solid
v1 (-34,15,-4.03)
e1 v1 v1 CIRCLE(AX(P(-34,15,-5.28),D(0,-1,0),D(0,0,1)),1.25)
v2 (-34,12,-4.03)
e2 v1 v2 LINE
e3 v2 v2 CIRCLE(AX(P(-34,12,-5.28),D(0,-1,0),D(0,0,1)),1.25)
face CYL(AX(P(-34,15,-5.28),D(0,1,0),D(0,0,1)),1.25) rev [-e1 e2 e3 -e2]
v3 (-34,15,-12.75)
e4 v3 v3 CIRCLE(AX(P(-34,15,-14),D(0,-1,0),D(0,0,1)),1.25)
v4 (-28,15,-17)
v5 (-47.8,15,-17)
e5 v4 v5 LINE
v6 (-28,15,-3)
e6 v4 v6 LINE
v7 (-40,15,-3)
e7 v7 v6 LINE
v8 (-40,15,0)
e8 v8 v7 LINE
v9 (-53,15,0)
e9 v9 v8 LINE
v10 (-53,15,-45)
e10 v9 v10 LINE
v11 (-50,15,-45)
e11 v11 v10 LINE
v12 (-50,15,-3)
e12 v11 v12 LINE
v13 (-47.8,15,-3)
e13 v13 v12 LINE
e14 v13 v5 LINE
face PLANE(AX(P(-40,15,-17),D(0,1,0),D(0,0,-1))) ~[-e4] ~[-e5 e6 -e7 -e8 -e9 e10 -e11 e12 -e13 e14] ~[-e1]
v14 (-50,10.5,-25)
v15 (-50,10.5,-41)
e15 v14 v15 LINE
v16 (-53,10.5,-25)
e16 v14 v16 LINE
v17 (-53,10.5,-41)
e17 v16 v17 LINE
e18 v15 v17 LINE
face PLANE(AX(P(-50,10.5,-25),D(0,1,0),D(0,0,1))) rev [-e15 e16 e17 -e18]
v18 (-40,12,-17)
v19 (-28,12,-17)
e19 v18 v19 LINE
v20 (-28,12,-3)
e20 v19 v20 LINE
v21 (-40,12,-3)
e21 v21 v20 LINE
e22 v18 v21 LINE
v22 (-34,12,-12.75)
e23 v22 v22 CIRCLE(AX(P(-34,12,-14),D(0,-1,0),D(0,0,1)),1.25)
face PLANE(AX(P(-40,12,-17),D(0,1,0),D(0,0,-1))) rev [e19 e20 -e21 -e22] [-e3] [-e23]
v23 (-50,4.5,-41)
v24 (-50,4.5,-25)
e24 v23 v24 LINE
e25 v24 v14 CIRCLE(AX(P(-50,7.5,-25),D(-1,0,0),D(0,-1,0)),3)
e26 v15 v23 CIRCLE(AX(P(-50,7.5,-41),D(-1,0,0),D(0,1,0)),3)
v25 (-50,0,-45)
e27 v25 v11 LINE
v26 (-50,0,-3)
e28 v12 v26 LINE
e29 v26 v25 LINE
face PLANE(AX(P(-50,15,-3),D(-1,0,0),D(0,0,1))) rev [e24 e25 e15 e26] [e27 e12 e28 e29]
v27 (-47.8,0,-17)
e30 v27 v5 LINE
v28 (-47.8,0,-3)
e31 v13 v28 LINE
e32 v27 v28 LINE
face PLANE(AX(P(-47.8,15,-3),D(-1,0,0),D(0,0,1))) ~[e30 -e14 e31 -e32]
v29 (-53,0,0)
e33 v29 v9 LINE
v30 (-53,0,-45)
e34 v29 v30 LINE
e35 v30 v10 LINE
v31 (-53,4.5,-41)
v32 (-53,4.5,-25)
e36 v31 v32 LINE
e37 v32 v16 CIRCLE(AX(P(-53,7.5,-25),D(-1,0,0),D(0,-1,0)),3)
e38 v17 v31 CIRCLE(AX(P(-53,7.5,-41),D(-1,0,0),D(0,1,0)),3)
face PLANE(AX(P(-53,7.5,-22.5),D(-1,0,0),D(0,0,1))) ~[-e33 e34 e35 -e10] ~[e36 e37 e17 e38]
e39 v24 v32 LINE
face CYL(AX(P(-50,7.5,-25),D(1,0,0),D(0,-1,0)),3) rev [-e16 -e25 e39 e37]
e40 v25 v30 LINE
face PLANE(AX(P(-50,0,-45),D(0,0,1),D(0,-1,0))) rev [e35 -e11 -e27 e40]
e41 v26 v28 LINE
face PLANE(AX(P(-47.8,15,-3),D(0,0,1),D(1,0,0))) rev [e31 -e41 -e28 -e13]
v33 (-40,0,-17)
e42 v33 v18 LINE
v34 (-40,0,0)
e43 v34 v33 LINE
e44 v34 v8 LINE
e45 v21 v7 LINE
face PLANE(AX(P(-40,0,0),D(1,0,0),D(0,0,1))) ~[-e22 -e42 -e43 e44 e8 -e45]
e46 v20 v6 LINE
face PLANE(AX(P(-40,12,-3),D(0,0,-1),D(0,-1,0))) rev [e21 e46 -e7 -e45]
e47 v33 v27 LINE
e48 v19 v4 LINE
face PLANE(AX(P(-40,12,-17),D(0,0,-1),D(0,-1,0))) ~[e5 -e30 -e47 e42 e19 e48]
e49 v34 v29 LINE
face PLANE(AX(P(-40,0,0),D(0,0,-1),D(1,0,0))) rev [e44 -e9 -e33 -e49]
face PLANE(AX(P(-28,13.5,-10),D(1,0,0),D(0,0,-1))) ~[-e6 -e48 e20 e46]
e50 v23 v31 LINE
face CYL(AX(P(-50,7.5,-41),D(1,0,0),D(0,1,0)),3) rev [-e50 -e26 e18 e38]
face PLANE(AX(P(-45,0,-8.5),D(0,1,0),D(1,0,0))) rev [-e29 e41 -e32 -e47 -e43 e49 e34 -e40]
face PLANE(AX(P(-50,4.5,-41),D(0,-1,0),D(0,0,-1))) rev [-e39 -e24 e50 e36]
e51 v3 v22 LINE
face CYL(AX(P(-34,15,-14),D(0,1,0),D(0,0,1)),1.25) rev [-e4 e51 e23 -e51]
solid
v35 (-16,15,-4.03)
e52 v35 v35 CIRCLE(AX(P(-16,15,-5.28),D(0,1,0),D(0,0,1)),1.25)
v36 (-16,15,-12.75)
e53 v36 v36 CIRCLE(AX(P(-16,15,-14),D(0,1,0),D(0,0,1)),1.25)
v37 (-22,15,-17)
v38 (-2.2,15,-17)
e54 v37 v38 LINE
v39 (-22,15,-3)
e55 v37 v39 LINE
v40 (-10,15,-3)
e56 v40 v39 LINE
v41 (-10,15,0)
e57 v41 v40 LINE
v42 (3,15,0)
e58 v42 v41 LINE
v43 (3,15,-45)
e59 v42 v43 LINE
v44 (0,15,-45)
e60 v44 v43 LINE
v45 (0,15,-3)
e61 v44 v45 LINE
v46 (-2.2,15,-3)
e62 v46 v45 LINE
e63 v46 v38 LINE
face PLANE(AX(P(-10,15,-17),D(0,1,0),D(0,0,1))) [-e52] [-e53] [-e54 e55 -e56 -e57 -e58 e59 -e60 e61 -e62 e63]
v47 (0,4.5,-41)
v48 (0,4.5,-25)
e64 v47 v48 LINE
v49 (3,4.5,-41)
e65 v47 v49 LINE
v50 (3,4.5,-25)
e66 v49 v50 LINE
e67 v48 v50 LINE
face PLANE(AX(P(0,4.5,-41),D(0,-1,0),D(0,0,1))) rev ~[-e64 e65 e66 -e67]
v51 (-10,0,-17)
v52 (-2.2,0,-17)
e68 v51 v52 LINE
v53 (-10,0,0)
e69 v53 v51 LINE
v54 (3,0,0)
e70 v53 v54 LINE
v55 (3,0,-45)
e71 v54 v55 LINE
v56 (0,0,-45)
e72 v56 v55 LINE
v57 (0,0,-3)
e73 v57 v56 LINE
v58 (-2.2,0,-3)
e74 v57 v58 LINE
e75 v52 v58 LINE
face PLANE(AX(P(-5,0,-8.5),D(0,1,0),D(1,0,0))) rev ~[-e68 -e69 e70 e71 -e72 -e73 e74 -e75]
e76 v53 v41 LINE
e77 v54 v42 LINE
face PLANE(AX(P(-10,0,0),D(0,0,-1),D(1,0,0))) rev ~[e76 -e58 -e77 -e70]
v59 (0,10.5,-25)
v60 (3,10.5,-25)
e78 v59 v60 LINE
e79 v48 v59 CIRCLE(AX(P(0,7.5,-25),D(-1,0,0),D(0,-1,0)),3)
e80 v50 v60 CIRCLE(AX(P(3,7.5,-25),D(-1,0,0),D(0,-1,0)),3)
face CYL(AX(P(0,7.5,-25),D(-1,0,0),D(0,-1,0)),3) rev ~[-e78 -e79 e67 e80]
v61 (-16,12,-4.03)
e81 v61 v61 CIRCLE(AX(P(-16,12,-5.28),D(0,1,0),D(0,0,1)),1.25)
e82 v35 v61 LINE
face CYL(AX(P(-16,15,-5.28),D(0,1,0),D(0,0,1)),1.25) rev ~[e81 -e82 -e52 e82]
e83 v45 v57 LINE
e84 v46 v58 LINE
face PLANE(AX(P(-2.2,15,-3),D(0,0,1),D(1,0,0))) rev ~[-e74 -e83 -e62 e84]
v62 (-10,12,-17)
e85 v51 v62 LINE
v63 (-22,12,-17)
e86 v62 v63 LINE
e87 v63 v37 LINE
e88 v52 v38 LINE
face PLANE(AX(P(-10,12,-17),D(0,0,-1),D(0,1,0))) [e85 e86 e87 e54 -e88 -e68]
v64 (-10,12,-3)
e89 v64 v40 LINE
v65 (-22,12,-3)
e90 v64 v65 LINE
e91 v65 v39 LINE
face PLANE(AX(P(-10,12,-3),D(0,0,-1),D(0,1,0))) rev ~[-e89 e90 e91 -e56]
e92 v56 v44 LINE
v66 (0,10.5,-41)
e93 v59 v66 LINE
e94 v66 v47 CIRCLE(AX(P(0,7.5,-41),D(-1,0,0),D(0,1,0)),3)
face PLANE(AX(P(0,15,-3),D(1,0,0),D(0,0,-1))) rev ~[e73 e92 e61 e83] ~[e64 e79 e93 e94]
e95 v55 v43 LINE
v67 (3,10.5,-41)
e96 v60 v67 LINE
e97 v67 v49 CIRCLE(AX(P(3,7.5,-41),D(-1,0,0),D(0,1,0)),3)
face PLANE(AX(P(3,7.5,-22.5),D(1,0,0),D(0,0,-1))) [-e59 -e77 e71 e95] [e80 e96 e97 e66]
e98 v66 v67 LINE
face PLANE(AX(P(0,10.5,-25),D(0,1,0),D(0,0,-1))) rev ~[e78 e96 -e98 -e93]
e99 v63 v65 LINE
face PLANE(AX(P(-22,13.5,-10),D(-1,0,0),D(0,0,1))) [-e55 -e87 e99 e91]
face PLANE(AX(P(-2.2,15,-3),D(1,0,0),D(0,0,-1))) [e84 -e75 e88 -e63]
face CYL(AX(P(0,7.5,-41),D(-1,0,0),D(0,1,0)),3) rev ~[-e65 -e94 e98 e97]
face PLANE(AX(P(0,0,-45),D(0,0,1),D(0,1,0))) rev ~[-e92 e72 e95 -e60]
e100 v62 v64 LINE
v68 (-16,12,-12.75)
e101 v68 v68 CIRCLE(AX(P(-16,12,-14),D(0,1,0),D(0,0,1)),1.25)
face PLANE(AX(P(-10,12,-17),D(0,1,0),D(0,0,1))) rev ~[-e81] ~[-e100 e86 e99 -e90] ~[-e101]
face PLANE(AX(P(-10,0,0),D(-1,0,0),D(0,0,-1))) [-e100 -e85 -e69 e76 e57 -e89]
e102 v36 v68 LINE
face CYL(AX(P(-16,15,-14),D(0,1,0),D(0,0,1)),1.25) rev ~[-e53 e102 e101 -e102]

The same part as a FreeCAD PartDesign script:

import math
import FreeCAD as App
import Part
import Sketcher

doc = App.newDocument("Part")
body = doc.addObject("PartDesign::Body", "Body")

sketch1 = body.newObject("Sketcher::SketchObject", "Sketch")
sketch1.AttachmentSupport = (doc.getObject("YZ_Plane"), [""])
sketch1.MapMode = "FlatFace"
sketch1.addGeometry(Part.LineSegment(App.Vector(15, 0, 0), App.Vector(0, 0, 0)), False)
sketch1.addGeometry(Part.LineSegment(App.Vector(0, 0, 0), App.Vector(0, -45, 0)), False)
sketch1.addGeometry(Part.LineSegment(App.Vector(0, -45, 0), App.Vector(15, -45, 0)), False)
sketch1.addGeometry(Part.LineSegment(App.Vector(15, -45, 0), App.Vector(15, 0, 0)), False)
sketch1.addGeometry(Part.ArcOfCircle(Part.Circle(App.Vector(7.5, -41, 0), App.Vector(0, 0, 1), 3), math.radians(180), math.radians(360)), False)
sketch1.addGeometry(Part.LineSegment(App.Vector(4.5, -41, 0), App.Vector(4.5, -25, 0)), False)
sketch1.addGeometry(Part.ArcOfCircle(Part.Circle(App.Vector(7.5, -25, 0), App.Vector(0, 0, 1), 3), math.radians(0), math.radians(180)), False)
sketch1.addGeometry(Part.LineSegment(App.Vector(10.5, -25, 0), App.Vector(10.5, -41, 0)), False)
sketch1.addConstraint(Sketcher.Constraint("Coincident", 0, 2, 1, 1))
sketch1.addConstraint(Sketcher.Constraint("Coincident", 1, 2, 2, 1))
sketch1.addConstraint(Sketcher.Constraint("Coincident", 2, 2, 3, 1))
sketch1.addConstraint(Sketcher.Constraint("Coincident", 3, 2, 0, 1))
sketch1.addConstraint(Sketcher.Constraint("Tangent", 4, 1, 5, 1))
sketch1.addConstraint(Sketcher.Constraint("Tangent", 5, 2, 6, 2))
sketch1.addConstraint(Sketcher.Constraint("Tangent", 6, 1, 7, 1))
sketch1.addConstraint(Sketcher.Constraint("Tangent", 7, 2, 4, 2))
sketch1.addConstraint(Sketcher.Constraint("Horizontal", 0))
sketch1.addConstraint(Sketcher.Constraint("Vertical", 1))
sketch1.addConstraint(Sketcher.Constraint("Horizontal", 2))
sketch1.addConstraint(Sketcher.Constraint("Vertical", 3))
sketch1.addConstraint(Sketcher.Constraint("Vertical", 5))
sketch1.addConstraint(Sketcher.Constraint("Vertical", 7))
sketch1.addConstraint(Sketcher.Constraint("Coincident", 0, 2, -1, 1))
sketch1.addConstraint(Sketcher.Constraint("Radius", 4, 3.0))
sketch1.addConstraint(Sketcher.Constraint("DistanceX", 0, 2, 0, 1, 15.0))
sketch1.addConstraint(Sketcher.Constraint("DistanceY", 1, 2, 1, 1, 45.0))
sketch1.addConstraint(Sketcher.Constraint("DistanceY", 5, 1, 5, 2, 16.0))
sketch1.addConstraint(Sketcher.Constraint("DistanceY", 4, 3, -1, 1, 41.0))
sketch1.addConstraint(Sketcher.Constraint("DistanceX", -1, 1, 4, 3, 7.5))
pad1 = body.newObject("PartDesign::Pad", "Pad")
pad1.Profile = sketch1
pad1.Length = 3

sketch2 = body.newObject("Sketcher::SketchObject", "Sketch001")
sketch2.AttachmentSupport = (doc.getObject("XZ_Plane"), [""])
sketch2.MapMode = "FlatFace"
sketch2.addGeometry(Part.LineSegment(App.Vector(-10, -17, 0), App.Vector(-10, 0, 0)), False)
sketch2.addGeometry(Part.LineSegment(App.Vector(-10, 0, 0), App.Vector(0, 0, 0)), False)
sketch2.addGeometry(Part.LineSegment(App.Vector(0, 0, 0), App.Vector(0, -17, 0)), False)
sketch2.addGeometry(Part.LineSegment(App.Vector(0, -17, 0), App.Vector(-10, -17, 0)), False)
sketch2.addConstraint(Sketcher.Constraint("Coincident", 0, 2, 1, 1))
sketch2.addConstraint(Sketcher.Constraint("Coincident", 1, 2, 2, 1))
sketch2.addConstraint(Sketcher.Constraint("Coincident", 2, 2, 3, 1))
sketch2.addConstraint(Sketcher.Constraint("Coincident", 3, 2, 0, 1))
sketch2.addConstraint(Sketcher.Constraint("Vertical", 0))
sketch2.addConstraint(Sketcher.Constraint("Horizontal", 1))
sketch2.addConstraint(Sketcher.Constraint("Vertical", 2))
sketch2.addConstraint(Sketcher.Constraint("Horizontal", 3))
sketch2.addConstraint(Sketcher.Constraint("Coincident", 1, 2, -1, 1))
sketch2.addConstraint(Sketcher.Constraint("DistanceX", 1, 1, 1, 2, 10.0))
sketch2.addConstraint(Sketcher.Constraint("DistanceY", 0, 1, 0, 2, 17.0))
pad2 = body.newObject("PartDesign::Pad", "Pad001")
pad2.Profile = sketch2
pad2.Length = 15
pad2.Reversed = True

sketch3 = body.newObject("Sketcher::SketchObject", "Sketch002")
sketch3.AttachmentSupport = (doc.getObject("XZ_Plane"), [""])
sketch3.MapMode = "FlatFace"
sketch3.AttachmentOffset = App.Placement(App.Vector(0, 0, -15), App.Rotation())
sketch3.addGeometry(Part.LineSegment(App.Vector(-2.2, -45, 0), App.Vector(-2.2, -3, 0)), False)
sketch3.addGeometry(Part.LineSegment(App.Vector(-2.2, -3, 0), App.Vector(0, -3, 0)), False)
sketch3.addGeometry(Part.LineSegment(App.Vector(0, -3, 0), App.Vector(0, -45, 0)), False)
sketch3.addGeometry(Part.LineSegment(App.Vector(0, -45, 0), App.Vector(-2.2, -45, 0)), False)
sketch3.addConstraint(Sketcher.Constraint("Coincident", 0, 2, 1, 1))
sketch3.addConstraint(Sketcher.Constraint("Coincident", 1, 2, 2, 1))
sketch3.addConstraint(Sketcher.Constraint("Coincident", 2, 2, 3, 1))
sketch3.addConstraint(Sketcher.Constraint("Coincident", 3, 2, 0, 1))
sketch3.addConstraint(Sketcher.Constraint("Vertical", 0))
sketch3.addConstraint(Sketcher.Constraint("Horizontal", 1))
sketch3.addConstraint(Sketcher.Constraint("Vertical", 2))
sketch3.addConstraint(Sketcher.Constraint("Horizontal", 3))
sketch3.addConstraint(Sketcher.Constraint("PointOnObject", 1, 2, -2))
sketch3.addConstraint(Sketcher.Constraint("DistanceY", 0, 1, 0, 2, 42.0))
sketch3.addConstraint(Sketcher.Constraint("DistanceX", 1, 1, 1, 2, 2.2))
sketch3.addConstraint(Sketcher.Constraint("DistanceY", 0, 2, -1, 1, 3.0))
pocket1 = body.newObject("PartDesign::Pocket", "Pocket")
pocket1.Profile = sketch3
pocket1.Length = 15
pocket1.Reversed = True

sketch4 = body.newObject("Sketcher::SketchObject", "Sketch003")
sketch4.AttachmentSupport = (doc.getObject("YZ_Plane"), [""])
sketch4.MapMode = "FlatFace"
sketch4.AttachmentOffset = App.Placement(App.Vector(0, 0, -10), App.Rotation())
sketch4.addGeometry(Part.LineSegment(App.Vector(15, -17, 0), App.Vector(12, -17, 0)), False)
sketch4.addGeometry(Part.LineSegment(App.Vector(12, -17, 0), App.Vector(12, -3, 0)), False)
sketch4.addGeometry(Part.LineSegment(App.Vector(12, -3, 0), App.Vector(15, -3, 0)), False)
sketch4.addGeometry(Part.LineSegment(App.Vector(15, -3, 0), App.Vector(15, -17, 0)), False)
sketch4.addConstraint(Sketcher.Constraint("Coincident", 0, 2, 1, 1))
sketch4.addConstraint(Sketcher.Constraint("Coincident", 1, 2, 2, 1))
sketch4.addConstraint(Sketcher.Constraint("Coincident", 2, 2, 3, 1))
sketch4.addConstraint(Sketcher.Constraint("Coincident", 3, 2, 0, 1))
sketch4.addConstraint(Sketcher.Constraint("Horizontal", 0))
sketch4.addConstraint(Sketcher.Constraint("Vertical", 1))
sketch4.addConstraint(Sketcher.Constraint("Horizontal", 2))
sketch4.addConstraint(Sketcher.Constraint("Vertical", 3))
sketch4.addConstraint(Sketcher.Constraint("DistanceX", 0, 2, 0, 1, 3.0))
sketch4.addConstraint(Sketcher.Constraint("DistanceY", 1, 1, 1, 2, 14.0))
sketch4.addConstraint(Sketcher.Constraint("DistanceX", -1, 1, 0, 2, 12.0))
sketch4.addConstraint(Sketcher.Constraint("DistanceY", 0, 2, -1, 1, 17.0))
pad3 = body.newObject("PartDesign::Pad", "Pad002")
pad3.Profile = sketch4
pad3.Length = 12
pad3.Reversed = True

sketch5 = body.newObject("Sketcher::SketchObject", "Sketch004")
sketch5.AttachmentSupport = (doc.getObject("XZ_Plane"), [""])
sketch5.MapMode = "FlatFace"
sketch5.AttachmentOffset = App.Placement(App.Vector(0, 0, -15), App.Rotation())
sketch5.addGeometry(Part.Circle(App.Vector(-16, -14, 0), App.Vector(0, 0, 1), 1.2), False)
sketch5.addConstraint(Sketcher.Constraint("Diameter", 0, 2.5))
sketch5.addConstraint(Sketcher.Constraint("DistanceX", 0, 3, -1, 1, 16.0))
sketch5.addConstraint(Sketcher.Constraint("DistanceY", 0, 3, -1, 1, 14.0))
pocket2 = body.newObject("PartDesign::Pocket", "Pocket001")
pocket2.Profile = sketch5
pocket2.Type = "UpToFirst"
pocket2.Reversed = True

sketch6 = body.newObject("Sketcher::SketchObject", "Sketch005")
sketch6.AttachmentSupport = (doc.getObject("XZ_Plane"), [""])
sketch6.MapMode = "FlatFace"
sketch6.AttachmentOffset = App.Placement(App.Vector(0, 0, -15), App.Rotation())
sketch6.addGeometry(Part.Circle(App.Vector(-16, -5.3, 0), App.Vector(0, 0, 1), 1.2), False)
sketch6.addConstraint(Sketcher.Constraint("Diameter", 0, 2.5))
sketch6.addConstraint(Sketcher.Constraint("DistanceX", 0, 3, -1, 1, 16.0))
sketch6.addConstraint(Sketcher.Constraint("DistanceY", 0, 3, -1, 1, 5.28))
pocket3 = body.newObject("PartDesign::Pocket", "Pocket002")
pocket3.Profile = sketch6
pocket3.Type = "UpToFirst"
pocket3.Reversed = True
body2 = doc.addObject("PartDesign::Body", "Body001")
doc.recompute()

mirroring = doc.addObject("Part::Mirroring", "Mirroring")
mirroring.Source = body
mirroring.Base = App.Vector(-25, 0, 0)
mirroring.Normal = App.Vector(-1, 0, 0)
body2.BaseFeature = mirroring
doc.recompute()
mirroring.Visibility = False

doc.recompute()
